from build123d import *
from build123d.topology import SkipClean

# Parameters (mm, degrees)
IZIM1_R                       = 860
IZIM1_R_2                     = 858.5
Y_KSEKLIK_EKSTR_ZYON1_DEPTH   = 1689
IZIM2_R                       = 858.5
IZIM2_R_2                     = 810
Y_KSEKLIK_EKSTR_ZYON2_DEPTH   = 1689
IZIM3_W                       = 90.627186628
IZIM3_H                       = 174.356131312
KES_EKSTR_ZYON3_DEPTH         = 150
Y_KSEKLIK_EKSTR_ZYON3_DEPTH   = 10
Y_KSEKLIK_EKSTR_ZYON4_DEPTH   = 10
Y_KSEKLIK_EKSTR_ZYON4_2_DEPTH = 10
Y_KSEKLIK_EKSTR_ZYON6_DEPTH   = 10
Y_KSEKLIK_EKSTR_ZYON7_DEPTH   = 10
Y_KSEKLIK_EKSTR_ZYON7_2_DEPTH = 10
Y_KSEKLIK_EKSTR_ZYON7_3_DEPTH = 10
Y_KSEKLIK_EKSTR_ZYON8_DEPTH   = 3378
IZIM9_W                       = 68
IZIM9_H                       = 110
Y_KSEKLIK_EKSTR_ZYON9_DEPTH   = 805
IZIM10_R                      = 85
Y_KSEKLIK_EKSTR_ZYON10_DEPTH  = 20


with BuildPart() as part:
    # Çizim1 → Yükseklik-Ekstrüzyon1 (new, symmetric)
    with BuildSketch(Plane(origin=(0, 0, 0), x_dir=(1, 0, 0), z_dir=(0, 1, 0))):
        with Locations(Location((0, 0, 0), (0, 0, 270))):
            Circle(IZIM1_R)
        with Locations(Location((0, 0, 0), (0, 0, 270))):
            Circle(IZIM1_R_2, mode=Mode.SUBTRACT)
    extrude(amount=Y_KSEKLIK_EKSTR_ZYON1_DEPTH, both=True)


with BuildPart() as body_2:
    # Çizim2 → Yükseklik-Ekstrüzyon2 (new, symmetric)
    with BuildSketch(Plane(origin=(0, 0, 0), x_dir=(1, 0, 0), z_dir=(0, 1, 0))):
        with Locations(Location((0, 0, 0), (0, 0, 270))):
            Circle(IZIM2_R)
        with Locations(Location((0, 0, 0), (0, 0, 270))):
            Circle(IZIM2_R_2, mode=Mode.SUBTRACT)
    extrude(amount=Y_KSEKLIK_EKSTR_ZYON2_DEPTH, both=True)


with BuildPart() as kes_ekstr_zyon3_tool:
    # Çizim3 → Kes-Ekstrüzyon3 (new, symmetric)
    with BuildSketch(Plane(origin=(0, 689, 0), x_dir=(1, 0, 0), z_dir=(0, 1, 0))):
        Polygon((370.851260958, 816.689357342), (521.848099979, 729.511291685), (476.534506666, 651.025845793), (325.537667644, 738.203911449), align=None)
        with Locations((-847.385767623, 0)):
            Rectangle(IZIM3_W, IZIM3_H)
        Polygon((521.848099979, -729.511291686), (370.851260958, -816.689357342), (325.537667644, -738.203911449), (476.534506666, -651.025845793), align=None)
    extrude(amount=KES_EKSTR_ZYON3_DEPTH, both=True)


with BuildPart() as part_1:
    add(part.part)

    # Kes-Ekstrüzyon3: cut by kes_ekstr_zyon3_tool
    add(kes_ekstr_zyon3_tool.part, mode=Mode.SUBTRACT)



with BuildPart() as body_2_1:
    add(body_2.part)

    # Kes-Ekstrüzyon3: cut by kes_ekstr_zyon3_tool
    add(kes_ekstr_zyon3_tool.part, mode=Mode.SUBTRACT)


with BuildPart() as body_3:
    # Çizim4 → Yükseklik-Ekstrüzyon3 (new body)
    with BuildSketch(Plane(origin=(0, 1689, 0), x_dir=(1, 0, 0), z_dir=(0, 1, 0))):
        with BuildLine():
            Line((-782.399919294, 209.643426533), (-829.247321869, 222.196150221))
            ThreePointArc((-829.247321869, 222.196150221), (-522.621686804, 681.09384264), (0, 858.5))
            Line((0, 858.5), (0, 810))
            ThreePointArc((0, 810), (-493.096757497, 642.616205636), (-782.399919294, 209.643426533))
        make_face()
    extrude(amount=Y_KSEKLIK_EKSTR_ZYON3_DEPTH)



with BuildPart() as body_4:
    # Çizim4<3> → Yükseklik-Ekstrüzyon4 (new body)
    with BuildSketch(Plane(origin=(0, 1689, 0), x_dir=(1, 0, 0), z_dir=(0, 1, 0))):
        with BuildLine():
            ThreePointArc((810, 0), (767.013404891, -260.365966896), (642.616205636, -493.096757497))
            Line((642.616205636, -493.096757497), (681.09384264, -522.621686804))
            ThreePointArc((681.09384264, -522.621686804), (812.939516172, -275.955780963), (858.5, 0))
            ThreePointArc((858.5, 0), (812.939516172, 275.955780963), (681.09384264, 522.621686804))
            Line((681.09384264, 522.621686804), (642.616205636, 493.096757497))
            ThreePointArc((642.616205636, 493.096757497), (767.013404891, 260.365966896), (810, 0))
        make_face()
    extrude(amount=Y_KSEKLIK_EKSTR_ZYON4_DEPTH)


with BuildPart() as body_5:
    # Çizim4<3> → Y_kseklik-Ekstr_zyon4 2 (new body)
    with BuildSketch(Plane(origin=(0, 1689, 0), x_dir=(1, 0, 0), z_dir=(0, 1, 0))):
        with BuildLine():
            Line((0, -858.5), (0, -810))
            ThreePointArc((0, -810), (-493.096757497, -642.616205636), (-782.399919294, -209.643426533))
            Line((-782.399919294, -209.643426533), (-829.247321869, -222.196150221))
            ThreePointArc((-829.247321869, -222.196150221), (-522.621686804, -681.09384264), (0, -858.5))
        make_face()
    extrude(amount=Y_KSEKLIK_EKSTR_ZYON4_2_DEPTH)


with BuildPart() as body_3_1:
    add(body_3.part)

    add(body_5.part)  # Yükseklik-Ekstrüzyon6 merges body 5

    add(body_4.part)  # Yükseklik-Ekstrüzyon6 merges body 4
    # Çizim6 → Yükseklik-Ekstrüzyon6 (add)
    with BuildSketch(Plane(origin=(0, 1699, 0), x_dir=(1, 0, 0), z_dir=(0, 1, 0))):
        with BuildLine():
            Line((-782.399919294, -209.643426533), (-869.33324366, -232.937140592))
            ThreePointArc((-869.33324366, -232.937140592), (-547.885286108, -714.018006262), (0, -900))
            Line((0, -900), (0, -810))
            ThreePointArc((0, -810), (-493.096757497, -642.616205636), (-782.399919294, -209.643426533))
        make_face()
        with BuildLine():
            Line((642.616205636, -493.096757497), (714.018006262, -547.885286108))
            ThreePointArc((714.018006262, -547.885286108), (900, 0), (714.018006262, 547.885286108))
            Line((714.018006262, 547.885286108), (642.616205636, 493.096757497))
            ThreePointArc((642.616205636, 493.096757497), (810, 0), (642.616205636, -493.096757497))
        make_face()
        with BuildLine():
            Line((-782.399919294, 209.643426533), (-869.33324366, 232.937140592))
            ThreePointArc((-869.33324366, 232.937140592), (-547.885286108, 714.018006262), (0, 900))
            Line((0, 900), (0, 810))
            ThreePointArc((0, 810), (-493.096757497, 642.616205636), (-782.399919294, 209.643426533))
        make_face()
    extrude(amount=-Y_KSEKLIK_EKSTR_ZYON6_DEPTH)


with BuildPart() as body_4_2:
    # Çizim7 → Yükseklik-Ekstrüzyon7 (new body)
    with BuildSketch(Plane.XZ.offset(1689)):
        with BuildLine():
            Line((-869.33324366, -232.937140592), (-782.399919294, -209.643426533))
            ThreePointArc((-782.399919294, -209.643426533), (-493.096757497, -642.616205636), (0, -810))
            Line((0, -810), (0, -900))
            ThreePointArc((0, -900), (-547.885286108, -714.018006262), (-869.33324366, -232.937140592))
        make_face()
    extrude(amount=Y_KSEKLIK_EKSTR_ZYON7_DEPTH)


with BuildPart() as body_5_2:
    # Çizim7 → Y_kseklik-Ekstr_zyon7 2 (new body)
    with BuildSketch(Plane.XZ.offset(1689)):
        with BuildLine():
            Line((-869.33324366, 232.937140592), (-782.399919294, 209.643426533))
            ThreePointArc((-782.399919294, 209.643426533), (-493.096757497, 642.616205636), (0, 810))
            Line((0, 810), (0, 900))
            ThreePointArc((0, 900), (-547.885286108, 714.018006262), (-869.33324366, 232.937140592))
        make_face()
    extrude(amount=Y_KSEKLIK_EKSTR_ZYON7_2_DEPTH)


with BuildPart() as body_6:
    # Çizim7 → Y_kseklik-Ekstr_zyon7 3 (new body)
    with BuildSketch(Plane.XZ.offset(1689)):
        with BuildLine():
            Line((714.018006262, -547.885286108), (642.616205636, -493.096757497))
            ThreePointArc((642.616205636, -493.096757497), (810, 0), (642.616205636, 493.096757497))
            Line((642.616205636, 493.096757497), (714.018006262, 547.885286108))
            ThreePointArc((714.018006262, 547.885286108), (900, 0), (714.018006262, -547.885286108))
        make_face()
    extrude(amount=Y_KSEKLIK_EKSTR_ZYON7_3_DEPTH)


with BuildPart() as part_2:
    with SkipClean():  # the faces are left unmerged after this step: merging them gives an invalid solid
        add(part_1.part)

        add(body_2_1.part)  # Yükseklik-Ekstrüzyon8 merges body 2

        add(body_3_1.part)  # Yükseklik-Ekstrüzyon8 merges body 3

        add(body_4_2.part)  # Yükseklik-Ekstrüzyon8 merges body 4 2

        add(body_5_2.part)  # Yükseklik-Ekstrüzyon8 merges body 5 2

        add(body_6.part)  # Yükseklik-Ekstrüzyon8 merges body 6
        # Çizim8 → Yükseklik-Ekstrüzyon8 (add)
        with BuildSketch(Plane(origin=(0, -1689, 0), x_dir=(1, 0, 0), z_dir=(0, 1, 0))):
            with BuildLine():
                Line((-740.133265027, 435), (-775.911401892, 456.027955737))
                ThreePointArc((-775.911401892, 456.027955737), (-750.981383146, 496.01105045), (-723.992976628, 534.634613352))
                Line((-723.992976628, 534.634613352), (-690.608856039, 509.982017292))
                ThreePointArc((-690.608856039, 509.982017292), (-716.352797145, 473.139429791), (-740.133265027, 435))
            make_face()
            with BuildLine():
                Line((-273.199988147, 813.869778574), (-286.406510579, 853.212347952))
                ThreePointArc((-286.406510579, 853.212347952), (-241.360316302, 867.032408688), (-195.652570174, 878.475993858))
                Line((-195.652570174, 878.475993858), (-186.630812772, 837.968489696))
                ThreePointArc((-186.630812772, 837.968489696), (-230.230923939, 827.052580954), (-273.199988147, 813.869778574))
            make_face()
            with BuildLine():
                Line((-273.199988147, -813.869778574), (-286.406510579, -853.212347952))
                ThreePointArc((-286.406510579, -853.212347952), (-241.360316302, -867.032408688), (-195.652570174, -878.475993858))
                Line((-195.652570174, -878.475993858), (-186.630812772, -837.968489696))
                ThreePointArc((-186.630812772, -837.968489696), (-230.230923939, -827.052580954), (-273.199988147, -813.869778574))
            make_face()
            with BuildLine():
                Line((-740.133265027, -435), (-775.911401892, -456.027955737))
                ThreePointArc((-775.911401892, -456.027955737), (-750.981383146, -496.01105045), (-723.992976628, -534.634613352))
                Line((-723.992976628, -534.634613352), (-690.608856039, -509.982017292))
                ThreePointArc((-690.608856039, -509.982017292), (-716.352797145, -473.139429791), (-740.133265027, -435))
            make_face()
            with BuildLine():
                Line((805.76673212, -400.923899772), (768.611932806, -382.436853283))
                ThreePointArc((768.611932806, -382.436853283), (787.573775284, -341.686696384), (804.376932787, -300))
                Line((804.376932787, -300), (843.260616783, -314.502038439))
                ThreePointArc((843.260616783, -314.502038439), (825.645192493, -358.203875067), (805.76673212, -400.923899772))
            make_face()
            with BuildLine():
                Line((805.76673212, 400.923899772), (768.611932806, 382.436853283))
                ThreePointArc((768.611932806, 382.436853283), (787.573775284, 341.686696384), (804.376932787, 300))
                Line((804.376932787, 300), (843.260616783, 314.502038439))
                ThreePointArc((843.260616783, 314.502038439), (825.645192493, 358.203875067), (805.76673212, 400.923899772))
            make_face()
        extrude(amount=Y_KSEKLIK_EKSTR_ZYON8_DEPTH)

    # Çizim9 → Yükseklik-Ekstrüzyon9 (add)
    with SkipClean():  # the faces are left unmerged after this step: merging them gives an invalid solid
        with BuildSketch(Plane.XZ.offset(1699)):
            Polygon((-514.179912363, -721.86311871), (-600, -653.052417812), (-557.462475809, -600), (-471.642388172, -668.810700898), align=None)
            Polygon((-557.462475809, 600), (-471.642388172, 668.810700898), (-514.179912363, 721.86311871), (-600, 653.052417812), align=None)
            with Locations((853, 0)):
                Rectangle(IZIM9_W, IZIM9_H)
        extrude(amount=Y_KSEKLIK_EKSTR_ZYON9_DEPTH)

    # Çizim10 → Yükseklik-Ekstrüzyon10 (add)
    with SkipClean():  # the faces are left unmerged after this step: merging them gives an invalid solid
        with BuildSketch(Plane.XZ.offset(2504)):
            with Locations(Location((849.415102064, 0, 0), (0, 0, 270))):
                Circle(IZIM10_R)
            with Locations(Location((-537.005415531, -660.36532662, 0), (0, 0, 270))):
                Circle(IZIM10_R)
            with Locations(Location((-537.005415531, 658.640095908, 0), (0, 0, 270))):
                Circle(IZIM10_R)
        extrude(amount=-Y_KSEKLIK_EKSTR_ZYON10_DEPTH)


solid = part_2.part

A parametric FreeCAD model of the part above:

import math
import FreeCAD as App
import Part
import Sketcher

V = App.Vector
Q = App.Units.Quantity


def add_polygon(sketch, points):
    """Adds a closed chain of lines whose ends are joined by coincident constraints."""
    first, n = sketch.GeometryCount, len(points)
    for a, b in zip(points, points[1:] + points[:1]):
        sketch.addGeometry(Part.LineSegment(App.Vector(*a, 0), App.Vector(*b, 0)), False)
    for i in range(n):
        sketch.addConstraint(Sketcher.Constraint("Coincident", first + i, 2, first + (i + 1) % n, 1))

doc = App.newDocument("Part")
params = doc.addObject("Spreadsheet::Sheet", "Params")
for row, (alias, value) in enumerate([
    ("sketch1_diameter", "1720 mm"),
    ("sketch1_diameter2", "1717 mm"),
    ("pad1_length", "3378 mm"),
    ("sketch2_diameter", "1717 mm"),
    ("sketch2_diameter2", "1620 mm"),
    ("pad2_length", "3378 mm"),
    ("pad3_length", "300 mm"),
    ("sketch4_radius", "810 mm"),
    ("sketch4_radius2", "858.5 mm"),
    ("pad4_length", "10 mm"),
    ("sketch5_radius", "810 mm"),
    ("sketch5_radius2", "858.5 mm"),
    ("pad5_length", "10 mm"),
    ("sketch6_radius", "810 mm"),
    ("sketch6_radius2", "858.5 mm"),
    ("pad6_length", "10 mm"),
    ("sketch7_radius", "900 mm"),
    ("sketch7_radius2", "810 mm"),
    ("pad7_length", "10 mm"),
    ("sketch8_radius", "900 mm"),
    ("sketch8_radius2", "810 mm"),
    ("pad8_length", "10 mm"),
    ("sketch9_radius", "810 mm"),
    ("sketch9_radius2", "900 mm"),
    ("pad9_length", "10 mm"),
    ("sketch10_radius", "900 mm"),
    ("sketch10_radius2", "810 mm"),
    ("pad10_length", "10 mm"),
    ("sketch11_radius", "900 mm"),
    ("sketch11_radius2", "858.5 mm"),
    ("pad11_length", "3378 mm"),
    ("sketch12_width", "68 mm"),
    ("sketch12_height", "110 mm"),
    ("sketch12_length", "110 mm"),
    ("sketch12_length2", "68 mm"),
    ("pad12_length", "805 mm"),
    ("sketch13_diameter", "170 mm"),
    ("pad13_length", "20 mm"),
], start=1):
    params.set(f"A{row}", alias)
    params.set(f"B{row}", "=" + value)
    params.setAlias(f"B{row}", alias)

body = doc.addObject("PartDesign::Body", "Body")

# Sketch on XZ plane
sketch1 = body.newObject("Sketcher::SketchObject", "Sketch")
sketch1.AttachmentSupport = (doc.getObject("XZ_Plane"), [""])
sketch1.MapMode = "FlatFace"
sketch1.addGeometry([
    Part.Circle(V(0, 0, 0), V(0, 0, 1), 860),
    Part.Circle(V(0, 0, 0), V(0, 0, 1), 858),
], False)
sketch1.addConstraint([
    Sketcher.Constraint("Coincident", 0, 3, -1, 1),
    Sketcher.Constraint("Coincident", 1, 3, -1, 1),
    Sketcher.Constraint("Diameter", 0, 1720.0),
    Sketcher.Constraint("Diameter", 1, 1717.0),
])
sketch1.setExpression("Constraints[2]", "Params.sketch1_diameter")
sketch1.setExpression("Constraints[3]", "Params.sketch1_diameter2")
pad1 = body.newObject("PartDesign::Pad", "Pad")
pad1.Profile = sketch1
pad1.setExpression("Length", "Params.pad1_length")
pad1.Midplane = True
body2 = doc.addObject("PartDesign::Body", "Body001")

# Sketch on XZ plane
sketch2 = body2.newObject("Sketcher::SketchObject", "Sketch001")
sketch2.AttachmentSupport = (doc.getObject("XZ_Plane001"), [""])
sketch2.MapMode = "FlatFace"
sketch2.addGeometry([
    Part.Circle(V(0, 0, 0), V(0, 0, 1), 858),
    Part.Circle(V(0, 0, 0), V(0, 0, 1), 810),
], False)
sketch2.addConstraint([
    Sketcher.Constraint("Coincident", 0, 3, -1, 1),
    Sketcher.Constraint("Coincident", 1, 3, -1, 1),
    Sketcher.Constraint("Diameter", 0, 1717.0),
    Sketcher.Constraint("Diameter", 1, 1620.0),
])
sketch2.setExpression("Constraints[2]", "Params.sketch2_diameter")
sketch2.setExpression("Constraints[3]", "Params.sketch2_diameter2")
pad2 = body2.newObject("PartDesign::Pad", "Pad001")
pad2.Profile = sketch2
pad2.setExpression("Length", "Params.pad2_length")
pad2.Midplane = True
body3 = doc.addObject("PartDesign::Body", "Body002")
body3.AllowCompound = True

# Sketch on XZ plane
sketch3 = body3.newObject("Sketcher::SketchObject", "Sketch002")
sketch3.AttachmentSupport = (doc.getObject("XZ_Plane002"), [""])
sketch3.MapMode = "FlatFace"
sketch3.AttachmentOffset = App.Placement(V(0, 0, -689), App.Rotation())
add_polygon(sketch3, [(522, -730), (371, -817), (326, -738), (477, -651)])  # lines 0-3
add_polygon(sketch3, [(-893, -87), (-893, 87), (-802, 87), (-802, -87)])  # lines 4-7
add_polygon(sketch3, [(371, 817), (522, 730), (477, 651), (326, 738)])  # lines 8-11
sketch3.addConstraint([
    Sketcher.Constraint("Vertical", 4),
    Sketcher.Constraint("Horizontal", 5),
    Sketcher.Constraint("Vertical", 6),
    Sketcher.Constraint("Horizontal", 7),
    Sketcher.Constraint("Symmetric", 3, 2, 8, 2, -1),
    Sketcher.Constraint("Symmetric", 2, 2, 9, 2, -1),
    Sketcher.Constraint("Symmetric", 1, 2, 10, 2, -1),
    Sketcher.Constraint("Symmetric", 0, 2, 11, 2, -1),
    Sketcher.Constraint("Perpendicular", 0, 1),
    Sketcher.Constraint("Perpendicular", 1, 2),
    Sketcher.Constraint("Perpendicular", 2, 3),
    Sketcher.Constraint("Angle", 0, Q("-150 deg")),
    Sketcher.Constraint("DistanceY", 4, 1, 4, 2, 174.356131),
    Sketcher.Constraint("DistanceX", -1, 1, 3, 2, 521.8481),
    Sketcher.Constraint("Distance", 0, 174.356131),
    Sketcher.Constraint("DistanceX", 5, 1, 5, 2, 90.627187),
    Sketcher.Constraint("DistanceY", 1, 2, -1, 1, 738.203911),
    Sketcher.Constraint("DistanceY", 3, 2, -1, 1, 729.511292),
    Sketcher.Constraint("DistanceX", 4, 2, -1, 1, 892.699361),
    Sketcher.Constraint("DistanceY", 2, 2, 4, 2, 738.203911),
])
pad3 = body3.newObject("PartDesign::Pad", "Pad002")
pad3.Profile = sketch3
pad3.setExpression("Length", "Params.pad3_length")
pad3.Midplane = True
doc.recompute()

body4 = doc.addObject("PartDesign::Body", "Body003")
body4.BaseFeature = body3
boolean = body.newObject("PartDesign::Boolean", "Boolean")
boolean.Type = "Cut"
boolean.addObjects([body4])
doc.recompute()

boolean2 = body2.newObject("PartDesign::Boolean", "Boolean001")
boolean2.Type = "Cut"
boolean2.addObjects([body3])
body5 = doc.addObject("PartDesign::Body", "Body004")

# Sketch on XZ plane
sketch4 = body5.newObject("Sketcher::SketchObject", "Sketch003")
sketch4.AttachmentSupport = (doc.getObject("XZ_Plane004"), [""])
sketch4.MapMode = "FlatFace"
sketch4.AttachmentOffset = App.Placement(V(0, 0, -1689), App.Rotation())
sketch4.addGeometry([
    Part.LineSegment(V(-829, -222, 0), V(-782, -210, 0)),
    Part.ArcOfCircle(Part.Circle(V(0, 0, 0), V(0, 0, 1), 810), math.radians(-165), math.radians(-90)),
    Part.LineSegment(V(0, -810, 0), V(0, -858, 0)),
    Part.ArcOfCircle(Part.Circle(V(0, 0, 0), V(0, 0, 1), 858), math.radians(-165), math.radians(-90)),
], False)
sketch4.addConstraint([
    Sketcher.Constraint("Coincident", 0, 2, 1, 1),
    Sketcher.Constraint("Coincident", 1, 2, 2, 1),
    Sketcher.Constraint("Coincident", 2, 2, 3, 2),
    Sketcher.Constraint("Coincident", 3, 1, 0, 1),
    Sketcher.Constraint("Vertical", 2),
    Sketcher.Constraint("Coincident", 1, 3, -1, 1),
    Sketcher.Constraint("Coincident", 3, 3, -1, 1),
    Sketcher.Constraint("PointOnObject", 2, 2, -2),
    Sketcher.Constraint("Radius", 1, 810.0),
    Sketcher.Constraint("Radius", 3, 858.5),
    Sketcher.Constraint("Angle", 0, Q("15 deg")),
    Sketcher.Constraint("DistanceX", 0, 2, -1, 1, 782.399919),
])
sketch4.setExpression("Constraints[8]", "Params.sketch4_radius")
sketch4.setExpression("Constraints[9]", "Params.sketch4_radius2")
pad4 = body5.newObject("PartDesign::Pad", "Pad003")
pad4.Profile = sketch4
pad4.setExpression("Length", "Params.pad4_length")
pad4.Reversed = True
body6 = doc.addObject("PartDesign::Body", "Body005")

# Sketch on XZ plane
sketch5 = body6.newObject("Sketcher::SketchObject", "Sketch004")
sketch5.AttachmentSupport = (doc.getObject("XZ_Plane005"), [""])
sketch5.MapMode = "FlatFace"
sketch5.AttachmentOffset = App.Placement(V(0, 0, -1689), App.Rotation())
sketch5.addGeometry([
    Part.ArcOfCircle(Part.Circle(V(0, 0, 0), V(0, 0, 1), 810), math.radians(0), math.radians(38)),  # 0
    Part.LineSegment(V(643, 493, 0), V(681, 523, 0)),  # 1
    Part.ArcOfCircle(Part.Circle(V(0, 0, 0), V(0, 0, 1), 858), math.radians(0), math.radians(38)),  # 2
    Part.ArcOfCircle(Part.Circle(V(0, 0, 0), V(0, 0, 1), 858), math.radians(-38), math.radians(0)),  # 3
    Part.LineSegment(V(681, -523, 0), V(643, -493, 0)),  # 4
    Part.ArcOfCircle(Part.Circle(V(0, 0, 0), V(0, 0, 1), 810), math.radians(-38), math.radians(0)),  # 5
], False)
sketch5.addConstraint([
    Sketcher.Constraint("Coincident", 0, 2, 1, 1),
    Sketcher.Constraint("Coincident", 1, 2, 2, 2),
    Sketcher.Constraint("Coincident", 2, 1, 3, 2),
    Sketcher.Constraint("Coincident", 3, 1, 4, 1),
    Sketcher.Constraint("Coincident", 4, 2, 5, 1),
    Sketcher.Constraint("Coincident", 5, 2, 0, 1),
    Sketcher.Constraint("Coincident", 0, 3, -1, 1),
    Sketcher.Constraint("Coincident", 2, 3, -1, 1),
    Sketcher.Constraint("Coincident", 3, 3, -1, 1),
    Sketcher.Constraint("Coincident", 5, 3, -1, 1),
    Sketcher.Constraint("PointOnObject", 2, 1, -1),
    Sketcher.Constraint("PointOnObject", 5, 2, -1),
    Sketcher.Constraint("Radius", 0, 810.0),
    Sketcher.Constraint("Radius", 2, 858.5),
    Sketcher.Constraint("Angle", 1, Q("37.5 deg")),
    Sketcher.Constraint("Angle", 4, Q("142.5 deg")),
    Sketcher.Constraint("DistanceX", -1, 1, 1, 2, 681.093843),
    Sketcher.Constraint("DistanceX", -1, 1, 4, 2, 642.616206),
])
sketch5.setExpression("Constraints[12]", "Params.sketch5_radius")
sketch5.setExpression("Constraints[13]", "Params.sketch5_radius2")
pad5 = body6.newObject("PartDesign::Pad", "Pad004")
pad5.Profile = sketch5
pad5.setExpression("Length", "Params.pad5_length")
pad5.Reversed = True
body7 = doc.addObject("PartDesign::Body", "Body006")

# Sketch on XZ plane
sketch6 = body7.newObject("Sketcher::SketchObject", "Sketch005")
sketch6.AttachmentSupport = (doc.getObject("XZ_Plane006"), [""])
sketch6.MapMode = "FlatFace"
sketch6.AttachmentOffset = App.Placement(V(0, 0, -1689), App.Rotation())
sketch6.addGeometry([
    Part.LineSegment(V(0, 858, 0), V(0, 810, 0)),
    Part.ArcOfCircle(Part.Circle(V(0, 0, 0), V(0, 0, 1), 810), math.radians(90), math.radians(165)),
    Part.LineSegment(V(-782, 210, 0), V(-829, 222, 0)),
    Part.ArcOfCircle(Part.Circle(V(0, 0, 0), V(0, 0, 1), 858), math.radians(90), math.radians(165)),
], False)
sketch6.addConstraint([
    Sketcher.Constraint("Coincident", 0, 2, 1, 1),
    Sketcher.Constraint("Coincident", 1, 2, 2, 1),
    Sketcher.Constraint("Coincident", 2, 2, 3, 2),
    Sketcher.Constraint("Coincident", 3, 1, 0, 1),
    Sketcher.Constraint("Vertical", 0),
    Sketcher.Constraint("Coincident", 1, 3, -1, 1),
    Sketcher.Constraint("Coincident", 3, 3, -1, 1),
    Sketcher.Constraint("PointOnObject", 0, 2, -2),
    Sketcher.Constraint("Radius", 1, 810.0),
    Sketcher.Constraint("Radius", 3, 858.5),
    Sketcher.Constraint("Angle", 2, Q("165 deg")),
    Sketcher.Constraint("DistanceX", 2, 2, -1, 1, 829.247322),
])
sketch6.setExpression("Constraints[8]", "Params.sketch6_radius")
sketch6.setExpression("Constraints[9]", "Params.sketch6_radius2")
pad6 = body7.newObject("PartDesign::Pad", "Pad005")
pad6.Profile = sketch6
pad6.setExpression("Length", "Params.pad6_length")
pad6.Reversed = True
body5.AllowCompound = True
doc.recompute()

boolean3 = body5.newObject("PartDesign::Boolean", "Boolean002")
boolean3.Type = "Fuse"
boolean3.addObjects([body7])
doc.recompute()

boolean4 = body5.newObject("PartDesign::Boolean", "Boolean003")
boolean4.Type = "Fuse"
boolean4.addObjects([body6])

# Sketch on XZ plane
sketch7 = body5.newObject("Sketcher::SketchObject", "Sketch006")
sketch7.AttachmentSupport = (doc.getObject("XZ_Plane004"), [""])
sketch7.MapMode = "FlatFace"
sketch7.AttachmentOffset = App.Placement(V(0, 0, -1699), App.Rotation())
sketch7.addGeometry([
    Part.LineSegment(V(-782, 210, 0), V(-869, 233, 0)),  # 0
    Part.ArcOfCircle(Part.Circle(V(0, 0, 0), V(0, 0, 1), 900), math.radians(90), math.radians(165)),  # 1
    Part.LineSegment(V(0, 900, 0), V(0, 810, 0)),  # 2
    Part.ArcOfCircle(Part.Circle(V(0, 0, 0), V(0, 0, 1), 810), math.radians(90), math.radians(165)),  # 3
    Part.LineSegment(V(643, 493, 0), V(714, 548, 0)),  # 4
    Part.ArcOfCircle(Part.Circle(V(0, 0, 0), V(0, 0, 1), 900), math.radians(-38), math.radians(38)),  # 5
    Part.LineSegment(V(714, -548, 0), V(643, -493, 0)),  # 6
    Part.ArcOfCircle(Part.Circle(V(0, 0, 0), V(0, 0, 1), 810), math.radians(-37), math.radians(37)),  # 7
    Part.LineSegment(V(-869, -233, 0), V(-782, -210, 0)),  # 8
    Part.ArcOfCircle(Part.Circle(V(0, 0, 0), V(0, 0, 1), 810), math.radians(-165), math.radians(-90)),  # 9
    Part.LineSegment(V(0, -810, 0), V(0, -900, 0)),  # 10
    Part.ArcOfCircle(Part.Circle(V(0, 0, 0), V(0, 0, 1), 900), math.radians(-165), math.radians(-90)),  # 11
], False)
sketch7.addConstraint([
    Sketcher.Constraint("Coincident", 0, 2, 1, 2),
    Sketcher.Constraint("Coincident", 1, 1, 2, 1),
    Sketcher.Constraint("Coincident", 2, 2, 3, 1),
    Sketcher.Constraint("Coincident", 3, 2, 0, 1),
    Sketcher.Constraint("Coincident", 4, 2, 5, 2),
    Sketcher.Constraint("Coincident", 5, 1, 6, 1),
    Sketcher.Constraint("Coincident", 6, 2, 7, 1),
    Sketcher.Constraint("Coincident", 7, 2, 4, 1),
    Sketcher.Constraint("Coincident", 8, 2, 9, 1),
    Sketcher.Constraint("Coincident", 9, 2, 10, 1),
    Sketcher.Constraint("Coincident", 10, 2, 11, 2),
    Sketcher.Constraint("Coincident", 11, 1, 8, 1),
    Sketcher.Constraint("Vertical", 2),
    Sketcher.Constraint("Vertical", 10),
    Sketcher.Constraint("Coincident", 1, 3, -1, 1),
    Sketcher.Constraint("Coincident", 3, 3, -1, 1),
    Sketcher.Constraint("Coincident", 5, 3, -1, 1),
    Sketcher.Constraint("Coincident", 7, 3, -1, 1),
    Sketcher.Constraint("Coincident", 9, 3, -1, 1),
    Sketcher.Constraint("Coincident", 11, 3, -1, 1),
    Sketcher.Constraint("Equal", 1, 5),
    Sketcher.Constraint("Equal", 3, 7),
    Sketcher.Constraint("Equal", 7, 9),
    Sketcher.Constraint("Equal", 5, 11),
    Sketcher.Constraint("PointOnObject", 2, 2, -2),
    Sketcher.Constraint("PointOnObject", 10, 2, -2),
    Sketcher.Constraint("Radius", 1, 900.0),
    Sketcher.Constraint("Radius", 3, 810.0),
    Sketcher.Constraint("Angle", 0, Q("165 deg")),
    Sketcher.Constraint("Angle", 8, Q("15 deg")),
    Sketcher.Constraint("Angle", 4, Q("37.5 deg")),
    Sketcher.Constraint("Angle", 6, Q("142.5 deg")),
    Sketcher.Constraint("DistanceY", -1, 1, 0, 2, 232.937141),
    Sketcher.Constraint("DistanceX", 8, 2, -1, 1, 782.399919),
    Sketcher.Constraint("DistanceX", -1, 1, 4, 2, 714.018006),
    Sketcher.Constraint("DistanceX", -1, 1, 6, 2, 642.616206),
])
sketch7.setExpression("Constraints[26]", "Params.sketch7_radius")
sketch7.setExpression("Constraints[27]", "Params.sketch7_radius2")
pad7 = body5.newObject("PartDesign::Pad", "Pad006")
pad7.Profile = sketch7
pad7.setExpression("Length", "Params.pad7_length")
body8 = doc.addObject("PartDesign::Body", "Body007")

# Sketch on XZ plane
sketch8 = body8.newObject("Sketcher::SketchObject", "Sketch007")
sketch8.AttachmentSupport = (doc.getObject("XZ_Plane007"), [""])
sketch8.MapMode = "FlatFace"
sketch8.AttachmentOffset = App.Placement(V(0, 0, 1689), App.Rotation())
sketch8.addGeometry([
    Part.LineSegment(V(-782, -210, 0), V(-869, -233, 0)),
    Part.ArcOfCircle(Part.Circle(V(0, 0, 0), V(0, 0, 1), 900), math.radians(-165), math.radians(-90)),
    Part.LineSegment(V(0, -900, 0), V(0, -810, 0)),
    Part.ArcOfCircle(Part.Circle(V(0, 0, 0), V(0, 0, 1), 810), math.radians(-165), math.radians(-90)),
], False)
sketch8.addConstraint([
    Sketcher.Constraint("Coincident", 0, 2, 1, 1),
    Sketcher.Constraint("Coincident", 1, 2, 2, 1),
    Sketcher.Constraint("Coincident", 2, 2, 3, 2),
    Sketcher.Constraint("Coincident", 3, 1, 0, 1),
    Sketcher.Constraint("Vertical", 2),
    Sketcher.Constraint("Coincident", 1, 3, -1, 1),
    Sketcher.Constraint("Coincident", 3, 3, -1, 1),
    Sketcher.Constraint("PointOnObject", 2, 2, -2),
    Sketcher.Constraint("Radius", 1, 900.0),
    Sketcher.Constraint("Radius", 3, 810.0),
    Sketcher.Constraint("Angle", 0, Q("-165 deg")),
    Sketcher.Constraint("DistanceY", 0, 2, -1, 1, 232.937141),
])
sketch8.setExpression("Constraints[8]", "Params.sketch8_radius")
sketch8.setExpression("Constraints[9]", "Params.sketch8_radius2")
pad8 = body8.newObject("PartDesign::Pad", "Pad007")
pad8.Profile = sketch8
pad8.setExpression("Length", "Params.pad8_length")
body9 = doc.addObject("PartDesign::Body", "Body008")

# Sketch on XZ plane
sketch9 = body9.newObject("Sketcher::SketchObject", "Sketch008")
sketch9.AttachmentSupport = (doc.getObject("XZ_Plane008"), [""])
sketch9.MapMode = "FlatFace"
sketch9.AttachmentOffset = App.Placement(V(0, 0, 1689), App.Rotation())
sketch9.addGeometry([
    Part.LineSegment(V(-869, 233, 0), V(-782, 210, 0)),
    Part.ArcOfCircle(Part.Circle(V(0, 0, 0), V(0, 0, 1), 810), math.radians(90), math.radians(165)),
    Part.LineSegment(V(0, 810, 0), V(0, 900, 0)),
    Part.ArcOfCircle(Part.Circle(V(0, 0, 0), V(0, 0, 1), 900), math.radians(90), math.radians(165)),
], False)
sketch9.addConstraint([
    Sketcher.Constraint("Coincident", 0, 2, 1, 2),
    Sketcher.Constraint("Coincident", 1, 1, 2, 1),
    Sketcher.Constraint("Coincident", 2, 2, 3, 1),
    Sketcher.Constraint("Coincident", 3, 2, 0, 1),
    Sketcher.Constraint("Vertical", 2),
    Sketcher.Constraint("Coincident", 1, 3, -1, 1),
    Sketcher.Constraint("Coincident", 3, 3, -1, 1),
    Sketcher.Constraint("PointOnObject", 2, 2, -2),
    Sketcher.Constraint("Radius", 1, 810.0),
    Sketcher.Constraint("Radius", 3, 900.0),
    Sketcher.Constraint("Angle", 0, Q("-15 deg")),
    Sketcher.Constraint("DistanceX", 0, 2, -1, 1, 782.399919),
])
sketch9.setExpression("Constraints[8]", "Params.sketch9_radius")
sketch9.setExpression("Constraints[9]", "Params.sketch9_radius2")
pad9 = body9.newObject("PartDesign::Pad", "Pad008")
pad9.Profile = sketch9
pad9.setExpression("Length", "Params.pad9_length")
body10 = doc.addObject("PartDesign::Body", "Body009")

# Sketch on XZ plane
sketch10 = body10.newObject("Sketcher::SketchObject", "Sketch009")
sketch10.AttachmentSupport = (doc.getObject("XZ_Plane009"), [""])
sketch10.MapMode = "FlatFace"
sketch10.AttachmentOffset = App.Placement(V(0, 0, 1689), App.Rotation())
sketch10.addGeometry([
    Part.LineSegment(V(643, -493, 0), V(714, -548, 0)),
    Part.ArcOfCircle(Part.Circle(V(0, 0, 0), V(0, 0, 1), 900), math.radians(-38), math.radians(38)),
    Part.LineSegment(V(714, 548, 0), V(643, 493, 0)),
    Part.ArcOfCircle(Part.Circle(V(0, 0, 0), V(0, 0, 1), 810), math.radians(-37), math.radians(37)),
], False)
sketch10.addConstraint([
    Sketcher.Constraint("Coincident", 0, 2, 1, 1),
    Sketcher.Constraint("Coincident", 1, 2, 2, 1),
    Sketcher.Constraint("Coincident", 2, 2, 3, 2),
    Sketcher.Constraint("Coincident", 3, 1, 0, 1),
    Sketcher.Constraint("Coincident", 1, 3, -1, 1),
    Sketcher.Constraint("Coincident", 3, 3, -1, 1),
    Sketcher.Constraint("Radius", 1, 900.0),
    Sketcher.Constraint("Radius", 3, 810.0),
    Sketcher.Constraint("Angle", 0, Q("-37.5 deg")),
    Sketcher.Constraint("Angle", 2, Q("-142.5 deg")),
    Sketcher.Constraint("DistanceX", 2, 2, 0, 2, 71.401801),
    Sketcher.Constraint("DistanceX", -1, 1, 0, 2, 714.018006),
])
sketch10.setExpression("Constraints[6]", "Params.sketch10_radius")
sketch10.setExpression("Constraints[7]", "Params.sketch10_radius2")
pad10 = body10.newObject("PartDesign::Pad", "Pad009")
pad10.Profile = sketch10
pad10.setExpression("Length", "Params.pad10_length")
doc.recompute()

boolean5 = body.newObject("PartDesign::Boolean", "Boolean004")
boolean5.Type = "Fuse"
boolean5.addObjects([body2])
doc.recompute()

boolean6 = body.newObject("PartDesign::Boolean", "Boolean005")
boolean6.Type = "Fuse"
boolean6.addObjects([body5])
doc.recompute()

boolean7 = body.newObject("PartDesign::Boolean", "Boolean006")
boolean7.Type = "Fuse"
boolean7.addObjects([body8])
doc.recompute()

boolean8 = body.newObject("PartDesign::Boolean", "Boolean007")
boolean8.Type = "Fuse"
boolean8.addObjects([body9])
doc.recompute()

boolean9 = body.newObject("PartDesign::Boolean", "Boolean008")
boolean9.Type = "Fuse"
boolean9.addObjects([body10])

# Sketch on XZ plane
sketch11 = body.newObject("Sketcher::SketchObject", "Sketch010")
sketch11.AttachmentSupport = (doc.getObject("XZ_Plane"), [""])
sketch11.MapMode = "FlatFace"
sketch11.AttachmentOffset = App.Placement(V(0, 0, 1689), App.Rotation())
sketch11.addGeometry([
    Part.LineSegment(V(-776, -456, 0), V(-740, -435, 0)),  # 0
    Part.ArcOfCircle(Part.Circle(V(0, 0, 0), V(0, 0, 1), 858), math.radians(-149.56), math.radians(-143.56)),  # 1
    Part.LineSegment(V(-691, -510, 0), V(-724, -535, 0)),  # 2
    Part.ArcOfCircle(Part.Circle(V(0, 0, 0), V(0, 0, 1), 900), math.radians(-149.56), math.radians(-143.56)),  # 3
    Part.LineSegment(V(-286, -853, 0), V(-273, -814, 0)),  # 4
    Part.ArcOfCircle(Part.Circle(V(0, 0, 0), V(0, 0, 1), 858), math.radians(-108.56), math.radians(-102.56)),  # 5
    Part.LineSegment(V(-187, -838, 0), V(-196, -878, 0)),  # 6
    Part.ArcOfCircle(Part.Circle(V(0, 0, 0), V(0, 0, 1), 900), math.radians(-108.56), math.radians(-102.56)),  # 7
    Part.LineSegment(V(-273, 814, 0), V(-286, 853, 0)),  # 8
    Part.ArcOfCircle(Part.Circle(V(0, 0, 0), V(0, 0, 1), 900), math.radians(102.56), math.radians(108.56)),  # 9
    Part.LineSegment(V(-196, 878, 0), V(-187, 838, 0)),  # 10
    Part.ArcOfCircle(Part.Circle(V(0, 0, 0), V(0, 0, 1), 858), math.radians(102.56), math.radians(108.56)),  # 11
    Part.LineSegment(V(-740, 435, 0), V(-776, 456, 0)),  # 12
    Part.ArcOfCircle(Part.Circle(V(0, 0, 0), V(0, 0, 1), 900), math.radians(143.56), math.radians(149.56)),  # 13
    Part.LineSegment(V(-724, 535, 0), V(-691, 510, 0)),  # 14
    Part.ArcOfCircle(Part.Circle(V(0, 0, 0), V(0, 0, 1), 858), math.radians(143.56), math.radians(149.56)),  # 15
    Part.LineSegment(V(769, 382, 0), V(806, 401, 0)),  # 16
    Part.ArcOfCircle(Part.Circle(V(0, 0, 0), V(0, 0, 1), 900), math.radians(20.45), math.radians(26.45)),  # 17
    Part.LineSegment(V(843, 315, 0), V(804, 300, 0)),  # 18
    Part.ArcOfCircle(Part.Circle(V(0, 0, 0), V(0, 0, 1), 858), math.radians(20.45), math.radians(26.45)),  # 19
    Part.LineSegment(V(806, -401, 0), V(769, -382, 0)),  # 20
    Part.ArcOfCircle(Part.Circle(V(0, 0, 0), V(0, 0, 1), 858), math.radians(-26.45), math.radians(-20.45)),  # 21
    Part.LineSegment(V(804, -300, 0), V(843, -315, 0)),  # 22
    Part.ArcOfCircle(Part.Circle(V(0, 0, 0), V(0, 0, 1), 900), math.radians(-26.45), math.radians(-20.45)),  # 23
], False)
sketch11.addConstraint([
    Sketcher.Constraint("Coincident", 0, 2, 1, 1),
    Sketcher.Constraint("Coincident", 1, 2, 2, 1),
    Sketcher.Constraint("Coincident", 2, 2, 3, 2),
    Sketcher.Constraint("Coincident", 3, 1, 0, 1),
    Sketcher.Constraint("Coincident", 4, 2, 5, 1),
    Sketcher.Constraint("Coincident", 5, 2, 6, 1),
    Sketcher.Constraint("Coincident", 6, 2, 7, 2),
    Sketcher.Constraint("Coincident", 7, 1, 4, 1),
    Sketcher.Constraint("Coincident", 8, 2, 9, 2),
    Sketcher.Constraint("Coincident", 9, 1, 10, 1),
    Sketcher.Constraint("Coincident", 10, 2, 11, 1),
    Sketcher.Constraint("Coincident", 11, 2, 8, 1),
    Sketcher.Constraint("Coincident", 12, 2, 13, 2),
    Sketcher.Constraint("Coincident", 13, 1, 14, 1),
    Sketcher.Constraint("Coincident", 14, 2, 15, 1),
    Sketcher.Constraint("Coincident", 15, 2, 12, 1),
    Sketcher.Constraint("Coincident", 16, 2, 17, 2),
    Sketcher.Constraint("Coincident", 17, 1, 18, 1),
    Sketcher.Constraint("Coincident", 18, 2, 19, 1),
    Sketcher.Constraint("Coincident", 19, 2, 16, 1),
    Sketcher.Constraint("Coincident", 20, 2, 21, 1),
    Sketcher.Constraint("Coincident", 21, 2, 22, 1),
    Sketcher.Constraint("Coincident", 22, 2, 23, 2),
    Sketcher.Constraint("Coincident", 23, 1, 20, 1),
    Sketcher.Constraint("Coincident", 1, 3, -1, 1),
    Sketcher.Constraint("Coincident", 3, 3, -1, 1),
    Sketcher.Constraint("Coincident", 5, 3, -1, 1),
    Sketcher.Constraint("Coincident", 7, 3, -1, 1),
    Sketcher.Constraint("Coincident", 9, 3, -1, 1),
    Sketcher.Constraint("Coincident", 11, 3, -1, 1),
    Sketcher.Constraint("Coincident", 13, 3, -1, 1),
    Sketcher.Constraint("Coincident", 15, 3, -1, 1),
    Sketcher.Constraint("Coincident", 17, 3, -1, 1),
    Sketcher.Constraint("Coincident", 19, 3, -1, 1),
    Sketcher.Constraint("Coincident", 21, 3, -1, 1),
    Sketcher.Constraint("Coincident", 23, 3, -1, 1),
    Sketcher.Constraint("Equal", 1, 5),
    Sketcher.Constraint("Equal", 3, 7),
    Sketcher.Constraint("Equal", 7, 9),
    Sketcher.Constraint("Equal", 5, 11),
    Sketcher.Constraint("Equal", 9, 13),
    Sketcher.Constraint("Equal", 11, 15),
    Sketcher.Constraint("Equal", 13, 17),
    Sketcher.Constraint("Equal", 15, 19),
    Sketcher.Constraint("Equal", 19, 21),
    Sketcher.Constraint("Equal", 17, 23),
    Sketcher.Constraint("Radius", 3, 900.0),
    Sketcher.Constraint("Radius", 1, 858.5),
    Sketcher.Constraint("DistanceY", 0, 2, -1, 1, 435.0),
    Sketcher.Constraint("DistanceY", -1, 1, 18, 2, 300.0),
    Sketcher.Constraint("DistanceX", 20, 2, 18, 2, 35.765),
    Sketcher.Constraint("DistanceX", 12, 2, -1, 1, 775.911402),
    Sketcher.Constraint("DistanceY", -1, 1, 16, 2, 400.9239),
    Sketcher.Constraint("DistanceX", 4, 2, -1, 1, 273.199988),
    Sketcher.Constraint("DistanceX", 6, 2, -1, 1, 195.65257),
    Sketcher.Constraint("DistanceX", 8, 2, -1, 1, 286.406511),
    Sketcher.Constraint("DistanceY", -1, 1, 10, 2, 837.96849),
    Sketcher.Constraint("DistanceY", 22, 2, -1, 1, 314.502038),
    Sketcher.Constraint("DistanceX", 0, 2, 2, 2, 16.140288),
    Sketcher.Constraint("DistanceY", 12, 2, 14, 2, 53.954062),
    Sketcher.Constraint("Angle", 0, Q("30.444116 deg")),
    Sketcher.Constraint("Angle", 2, Q("-143.555884 deg")),
    Sketcher.Constraint("Angle", 4, Q("71.444116 deg")),
    Sketcher.Constraint("Angle", 6, Q("-102.555884 deg")),
    Sketcher.Constraint("Angle", 8, Q("108.555884 deg")),
    Sketcher.Constraint("Angle", 10, Q("-77.444116 deg")),
    Sketcher.Constraint("Angle", 12, Q("149.555884 deg")),
    Sketcher.Constraint("Angle", 14, Q("-36.444116 deg")),
    Sketcher.Constraint("Angle", 16, Q("26.453477 deg")),
    Sketcher.Constraint("Angle", 18, Q("-159.546523 deg")),
    Sketcher.Constraint("Angle", 20, Q("153.546523 deg")),
    Sketcher.Constraint("Angle", 22, Q("-20.453477 deg")),
])
sketch11.setExpression("Constraints[46]", "Params.sketch11_radius")
sketch11.setExpression("Constraints[47]", "Params.sketch11_radius2")
pad11 = body.newObject("PartDesign::Pad", "Pad010")
pad11.Profile = sketch11
pad11.setExpression("Length", "Params.pad11_length")
pad11.Reversed = True

# Sketch on XZ plane
sketch12 = body.newObject("Sketcher::SketchObject", "Sketch011")
sketch12.AttachmentSupport = (doc.getObject("XZ_Plane"), [""])
sketch12.MapMode = "FlatFace"
sketch12.AttachmentOffset = App.Placement(V(0, 0, 1699), App.Rotation())
add_polygon(sketch12, [(-600, -653), (-514, -722), (-472, -669), (-557, -600)])  # lines 0-3
add_polygon(sketch12, [(-557, 600), (-472, 669), (-514, 722), (-600, 653)])  # lines 4-7
add_polygon(sketch12, [(819, 55), (819, -55), (887, -55), (887, 55)])  # lines 8-11
sketch12.addConstraint([
    Sketcher.Constraint("Vertical", 8),
    Sketcher.Constraint("Horizontal", 9),
    Sketcher.Constraint("Vertical", 10),
    Sketcher.Constraint("Horizontal", 11),
    Sketcher.Constraint("Symmetric", 1, 2, 4, 2, -1),
    Sketcher.Constraint("Symmetric", 0, 2, 5, 2, -1),
    Sketcher.Constraint("Symmetric", 3, 2, 6, 2, -1),
    Sketcher.Constraint("Symmetric", 2, 2, 7, 2, -1),
    Sketcher.Constraint("Perpendicular", 0, 1),
    Sketcher.Constraint("Perpendicular", 1, 2),
    Sketcher.Constraint("Perpendicular", 2, 3),
    Sketcher.Constraint("DistanceX", 9, 1, 9, 2, 68.0),
    Sketcher.Constraint("DistanceY", 8, 2, 8, 1, 110.0),
    Sketcher.Constraint("Distance", 0, 110.0),
    Sketcher.Constraint("Distance", 1, 68.0),
    Sketcher.Constraint("DistanceY", 2, 2, -1, 1, 600.0),
    Sketcher.Constraint("DistanceX", 3, 2, -1, 1, 600.0),
    Sketcher.Constraint("DistanceX", -1, 1, 8, 2, 819.0),
    Sketcher.Constraint("DistanceY", 8, 2, -1, 1, 55.0),
    Sketcher.Constraint("DistanceY", 1, 2, -1, 1, 668.810701),
])
sketch12.setExpression("Constraints[23]", "Params.sketch12_width")
sketch12.setExpression("Constraints[24]", "Params.sketch12_height")
sketch12.setExpression("Constraints[25]", "Params.sketch12_length")
sketch12.setExpression("Constraints[26]", "Params.sketch12_length2")
pad12 = body.newObject("PartDesign::Pad", "Pad011")
pad12.Profile = sketch12
pad12.setExpression("Length", "Params.pad12_length")

# Sketch on XZ plane
sketch13 = body.newObject("Sketcher::SketchObject", "Sketch012")
sketch13.AttachmentSupport = (doc.getObject("XZ_Plane"), [""])
sketch13.MapMode = "FlatFace"
sketch13.AttachmentOffset = App.Placement(V(0, 0, 2504), App.Rotation())
sketch13.addGeometry([
    Part.Circle(V(849, 0, 0), V(0, 0, 1), 85),
    Part.Circle(V(-537, -660, 0), V(0, 0, 1), 85),
    Part.Circle(V(-537, 659, 0), V(0, 0, 1), 85),
], False)
sketch13.addConstraint([
    Sketcher.Constraint("Equal", 0, 1),
    Sketcher.Constraint("Equal", 1, 2),
    Sketcher.Constraint("PointOnObject", 0, 3, -1),
    Sketcher.Constraint("Vertical", 1, 3, 2, 3),
    Sketcher.Constraint("Diameter", 0, 170.0),
    Sketcher.Constraint("DistanceX", -1, 1, 0, 3, 849.415102),
    Sketcher.Constraint("DistanceX", 1, 3, -1, 1, 537.005416),
    Sketcher.Constraint("DistanceY", 1, 3, -1, 1, 660.365327),
    Sketcher.Constraint("DistanceY", -1, 1, 2, 3, 658.640096),
])
sketch13.setExpression("Constraints[4]", "Params.sketch13_diameter")
pad13 = body.newObject("PartDesign::Pad", "Pad012")
pad13.Profile = sketch13
pad13.setExpression("Length", "Params.pad13_length")
pad13.Reversed = True

doc.recompute()
